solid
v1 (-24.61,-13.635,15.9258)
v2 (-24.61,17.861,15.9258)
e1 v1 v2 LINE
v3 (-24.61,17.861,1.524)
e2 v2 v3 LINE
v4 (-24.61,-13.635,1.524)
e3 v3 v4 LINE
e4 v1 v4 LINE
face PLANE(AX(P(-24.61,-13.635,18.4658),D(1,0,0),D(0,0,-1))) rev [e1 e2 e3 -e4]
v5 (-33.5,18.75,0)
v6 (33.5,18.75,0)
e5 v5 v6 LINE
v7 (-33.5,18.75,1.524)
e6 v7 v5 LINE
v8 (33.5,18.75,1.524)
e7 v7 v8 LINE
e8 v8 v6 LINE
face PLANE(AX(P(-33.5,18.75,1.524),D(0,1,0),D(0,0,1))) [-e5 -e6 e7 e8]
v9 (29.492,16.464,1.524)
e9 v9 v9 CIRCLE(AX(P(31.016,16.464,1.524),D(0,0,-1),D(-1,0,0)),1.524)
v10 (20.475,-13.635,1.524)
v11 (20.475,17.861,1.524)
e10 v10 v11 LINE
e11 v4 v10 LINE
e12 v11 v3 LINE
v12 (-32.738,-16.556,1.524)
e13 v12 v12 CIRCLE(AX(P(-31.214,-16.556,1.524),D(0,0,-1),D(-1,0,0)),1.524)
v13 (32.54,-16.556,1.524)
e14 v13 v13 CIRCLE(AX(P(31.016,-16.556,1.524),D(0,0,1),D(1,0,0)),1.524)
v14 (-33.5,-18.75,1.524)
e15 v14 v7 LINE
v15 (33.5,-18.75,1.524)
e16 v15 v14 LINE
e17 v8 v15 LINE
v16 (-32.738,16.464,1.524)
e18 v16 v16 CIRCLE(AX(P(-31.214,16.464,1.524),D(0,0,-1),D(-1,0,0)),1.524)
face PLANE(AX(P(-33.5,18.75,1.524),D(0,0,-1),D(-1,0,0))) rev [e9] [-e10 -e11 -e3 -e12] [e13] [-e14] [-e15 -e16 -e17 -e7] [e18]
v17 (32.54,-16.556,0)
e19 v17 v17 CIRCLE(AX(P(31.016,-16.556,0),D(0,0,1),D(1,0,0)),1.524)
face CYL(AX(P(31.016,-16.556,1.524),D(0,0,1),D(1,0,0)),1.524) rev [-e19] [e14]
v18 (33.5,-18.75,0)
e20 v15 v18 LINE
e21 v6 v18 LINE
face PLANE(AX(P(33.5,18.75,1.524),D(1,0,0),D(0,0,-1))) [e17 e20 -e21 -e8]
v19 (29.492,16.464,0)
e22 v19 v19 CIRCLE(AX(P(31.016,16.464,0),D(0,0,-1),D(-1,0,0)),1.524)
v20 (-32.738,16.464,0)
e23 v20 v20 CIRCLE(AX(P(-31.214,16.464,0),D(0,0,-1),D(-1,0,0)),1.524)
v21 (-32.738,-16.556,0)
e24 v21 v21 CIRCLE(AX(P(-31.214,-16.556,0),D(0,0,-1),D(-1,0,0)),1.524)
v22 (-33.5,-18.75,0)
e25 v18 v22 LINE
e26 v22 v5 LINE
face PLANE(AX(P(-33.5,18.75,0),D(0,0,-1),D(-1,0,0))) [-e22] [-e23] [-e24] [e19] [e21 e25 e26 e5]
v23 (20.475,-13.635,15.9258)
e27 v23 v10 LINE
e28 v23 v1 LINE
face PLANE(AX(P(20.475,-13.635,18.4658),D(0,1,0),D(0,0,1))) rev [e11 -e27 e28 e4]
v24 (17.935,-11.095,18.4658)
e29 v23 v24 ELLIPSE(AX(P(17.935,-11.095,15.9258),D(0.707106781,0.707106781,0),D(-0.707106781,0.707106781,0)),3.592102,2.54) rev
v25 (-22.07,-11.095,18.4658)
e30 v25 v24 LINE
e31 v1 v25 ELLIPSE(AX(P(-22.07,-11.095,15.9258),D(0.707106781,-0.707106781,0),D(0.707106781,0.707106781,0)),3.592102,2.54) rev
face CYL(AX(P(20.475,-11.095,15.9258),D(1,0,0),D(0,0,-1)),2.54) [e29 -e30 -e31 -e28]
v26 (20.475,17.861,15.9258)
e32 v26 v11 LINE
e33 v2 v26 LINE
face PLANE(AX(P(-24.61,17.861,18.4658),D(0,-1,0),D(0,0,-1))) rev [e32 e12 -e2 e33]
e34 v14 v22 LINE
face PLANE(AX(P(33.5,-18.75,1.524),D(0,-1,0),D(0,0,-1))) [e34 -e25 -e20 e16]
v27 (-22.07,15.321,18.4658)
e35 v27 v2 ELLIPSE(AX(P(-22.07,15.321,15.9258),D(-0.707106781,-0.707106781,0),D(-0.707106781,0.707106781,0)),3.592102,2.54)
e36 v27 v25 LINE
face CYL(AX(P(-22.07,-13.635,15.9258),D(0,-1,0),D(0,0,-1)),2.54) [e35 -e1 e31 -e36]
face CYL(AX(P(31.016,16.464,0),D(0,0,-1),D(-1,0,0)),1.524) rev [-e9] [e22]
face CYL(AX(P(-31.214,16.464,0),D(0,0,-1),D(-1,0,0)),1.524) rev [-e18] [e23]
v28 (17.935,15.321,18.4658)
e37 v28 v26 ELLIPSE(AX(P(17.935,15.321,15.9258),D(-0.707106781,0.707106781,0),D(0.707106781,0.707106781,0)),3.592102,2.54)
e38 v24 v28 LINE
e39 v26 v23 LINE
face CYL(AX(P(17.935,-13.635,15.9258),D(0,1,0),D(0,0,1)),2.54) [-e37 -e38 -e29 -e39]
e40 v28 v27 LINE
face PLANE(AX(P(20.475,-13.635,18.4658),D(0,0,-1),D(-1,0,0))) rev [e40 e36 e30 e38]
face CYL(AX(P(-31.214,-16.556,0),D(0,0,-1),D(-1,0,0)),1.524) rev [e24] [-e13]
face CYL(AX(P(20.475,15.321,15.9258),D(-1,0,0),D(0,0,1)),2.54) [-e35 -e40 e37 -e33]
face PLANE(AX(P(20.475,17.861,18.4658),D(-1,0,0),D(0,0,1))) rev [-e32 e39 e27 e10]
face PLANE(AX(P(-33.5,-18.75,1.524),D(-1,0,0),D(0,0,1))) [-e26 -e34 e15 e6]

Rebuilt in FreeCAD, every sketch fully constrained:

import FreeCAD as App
import Part
import Sketcher
Q = App.Units.Quantity


def edges_at(feature, points):
    """Names of the edges that pass closest to the given points."""
    edges = feature.Shape.Edges
    near = lambda p: min(range(len(edges)), key=lambda i: edges[i].distToShape(Part.Vertex(*p))[0])
    return sorted({f"Edge{near(p) + 1}" for p in points})


def add_polygon(sketch, points):
    """Adds a closed chain of lines whose ends are joined by coincident constraints."""
    first, n = sketch.GeometryCount, len(points)
    for a, b in zip(points, points[1:] + points[:1]):
        sketch.addGeometry(Part.LineSegment(App.Vector(*a, 0), App.Vector(*b, 0)), False)
    for i in range(n):
        sketch.addConstraint(Sketcher.Constraint("Coincident", first + i, 2, first + (i + 1) % n, 1))

doc = App.newDocument("Part")
params = doc.addObject("Spreadsheet::Sheet", "Params")
for row, (alias, value) in enumerate([
    ("pad1_length", "0.06 in"),
    ("sketch2_height", "1.24 in"),
    ("sketch2_width", "1.775 in"),
    ("pad2_length", "0.667 in"),
    ("sketch3_diameter", "0.12 in"),
    ("hole_diameter", "0.12 in"),
    ("sketch4_diameter", "0.12 in"),
    ("hole2_diameter", "0.12 in"),
    ("hole2_depth", "0.727 in"),
    ("sketch5_diameter", "0.12 in"),
    ("hole3_diameter", "0.12 in"),
    ("hole3_depth", "0.727 in"),
    ("sketch6_diameter", "0.12 in"),
    ("hole4_diameter", "0.12 in"),
    ("hole4_depth", "0.727 in"),
    ("fillet_radius", "0.1 in"),
], start=1):
    params.set(f"A{row}", alias)
    params.set(f"B{row}", "=" + value)
    params.setAlias(f"B{row}", alias)

body = doc.addObject("PartDesign::Body", "Body")

sketch1 = body.newObject("Sketcher::SketchObject", "Sketch")
sketch1.AttachmentSupport = (doc.getObject("XY_Plane"), [""])
sketch1.MapMode = "FlatFace"
add_polygon(sketch1, [(33.5, 18.75), (33.5, -18.75), (-33.5, -18.75), (-33.5, 18.75)])
sketch1.addConstraint([
    Sketcher.Constraint("Vertical", 0),
    Sketcher.Constraint("Horizontal", 1),
    Sketcher.Constraint("Vertical", 2),
    Sketcher.Constraint("Horizontal", 3),
    Sketcher.Constraint("Symmetric", 0, 2, 2, 2, -1, 1),
    Sketcher.Constraint("DistanceX", 1, 2, 1, 1, 67.0),
    Sketcher.Constraint("DistanceY", 0, 2, 0, 1, 37.5),
])
pad1 = body.newObject("PartDesign::Pad", "Pad")
pad1.Profile = sketch1
pad1.setExpression("Length", "Params.pad1_length")

sketch2 = body.newObject("Sketcher::SketchObject", "Sketch001")
sketch2.AttachmentSupport = (doc.getObject("XY_Plane"), [""])
sketch2.MapMode = "FlatFace"
sketch2.AttachmentOffset = App.Placement(App.Vector(0, 0, 0.06 * 25.4), App.Rotation())
add_polygon(sketch2, [(-24.61, 17.861), (-24.61, -13.635), (20.475, -13.635), (20.475, 17.861)])
sketch2.addConstraint([
    Sketcher.Constraint("Vertical", 0),
    Sketcher.Constraint("Horizontal", 1),
    Sketcher.Constraint("Vertical", 2),
    Sketcher.Constraint("Horizontal", 3),
    Sketcher.Constraint("DistanceY", 0, 2, 0, 1, Q("1.24 in")),
    Sketcher.Constraint("DistanceX", 1, 1, 1, 2, Q("1.775 in")),
    Sketcher.Constraint("DistanceX", 0, 2, -1, 1, 24.61),
    Sketcher.Constraint("DistanceY", 0, 2, -1, 1, 13.635),
])
sketch2.setExpression("Constraints[8]", "Params.sketch2_height")
sketch2.setExpression("Constraints[9]", "Params.sketch2_width")
pad2 = body.newObject("PartDesign::Pad", "Pad001")
pad2.Profile = sketch2
pad2.setExpression("Length", "Params.pad2_length")

sketch3 = body.newObject("Sketcher::SketchObject", "Sketch002")
sketch3.AttachmentSupport = (doc.getObject("XY_Plane"), [""])
sketch3.MapMode = "FlatFace"
sketch3.AttachmentOffset = App.Placement(App.Vector(0, 0, 0.06 * 25.4), App.Rotation())
sketch3.addGeometry(Part.Circle(App.Vector(31.016, -16.556, 0), App.Vector(0, 0, 1), 1.524), False)
sketch3.addConstraint([
    Sketcher.Constraint("Diameter", 0, Q("0.12 in")),
    Sketcher.Constraint("DistanceX", -1, 1, 0, 3, 31.016),
    Sketcher.Constraint("DistanceY", 0, 3, -1, 1, 16.556),
])
sketch3.setExpression("Constraints[0]", "Params.sketch3_diameter")
doc.recompute()
hole = body.newObject("PartDesign::Hole", "Hole")
hole.Profile = sketch3
hole.ThreadType = "None"
hole.setExpression("Diameter", "Params.hole_diameter")
hole.DepthType = "ThroughAll"

sketch4 = body.newObject("Sketcher::SketchObject", "Sketch003")
sketch4.AttachmentSupport = (doc.getObject("XY_Plane"), [""])
sketch4.MapMode = "FlatFace"
sketch4.addGeometry(Part.Circle(App.Vector(-31.214, -16.556, 0), App.Vector(0, 0, 1), 1.524), False)
sketch4.addConstraint([
    Sketcher.Constraint("Diameter", 0, Q("0.12 in")),
    Sketcher.Constraint("DistanceX", 0, 3, -1, 1, 31.214),
    Sketcher.Constraint("DistanceY", 0, 3, -1, 1, 16.556),
])
sketch4.setExpression("Constraints[0]", "Params.sketch4_diameter")
doc.recompute()
hole2 = body.newObject("PartDesign::Hole", "Hole001")
hole2.Profile = sketch4
hole2.ThreadType = "None"
hole2.setExpression("Diameter", "Params.hole2_diameter")
hole2.DepthType = "Dimension"
hole2.setExpression("Depth", "Params.hole2_depth")
hole2.DrillPoint = "Flat"
hole2.Reversed = True

sketch5 = body.newObject("Sketcher::SketchObject", "Sketch004")
sketch5.AttachmentSupport = (doc.getObject("XY_Plane"), [""])
sketch5.MapMode = "FlatFace"
sketch5.addGeometry(Part.Circle(App.Vector(31.016, 16.464, 0), App.Vector(0, 0, 1), 1.524), False)
sketch5.addConstraint([
    Sketcher.Constraint("Diameter", 0, Q("0.12 in")),
    Sketcher.Constraint("DistanceX", -1, 1, 0, 3, 31.016),
    Sketcher.Constraint("DistanceY", -1, 1, 0, 3, 16.464),
])
sketch5.setExpression("Constraints[0]", "Params.sketch5_diameter")
doc.recompute()
hole3 = body.newObject("PartDesign::Hole", "Hole002")
hole3.Profile = sketch5
hole3.ThreadType = "None"
hole3.setExpression("Diameter", "Params.hole3_diameter")
hole3.DepthType = "Dimension"
hole3.setExpression("Depth", "Params.hole3_depth")
hole3.DrillPoint = "Flat"
hole3.Reversed = True

sketch6 = body.newObject("Sketcher::SketchObject", "Sketch005")
sketch6.AttachmentSupport = (doc.getObject("XY_Plane"), [""])
sketch6.MapMode = "FlatFace"
sketch6.addGeometry(Part.Circle(App.Vector(-31.214, 16.464, 0), App.Vector(0, 0, 1), 1.524), False)
sketch6.addConstraint([
    Sketcher.Constraint("Diameter", 0, Q("0.12 in")),
    Sketcher.Constraint("DistanceX", 0, 3, -1, 1, 31.214),
    Sketcher.Constraint("DistanceY", -1, 1, 0, 3, 16.464),
])
sketch6.setExpression("Constraints[0]", "Params.sketch6_diameter")
doc.recompute()
hole4 = body.newObject("PartDesign::Hole", "Hole003")
hole4.Profile = sketch6
hole4.ThreadType = "None"
hole4.setExpression("Diameter", "Params.hole4_diameter")
hole4.DepthType = "Dimension"
hole4.setExpression("Depth", "Params.hole4_depth")
hole4.DrillPoint = "Flat"
hole4.Reversed = True
doc.recompute()

fillet = body.newObject("PartDesign::Fillet", "Fillet")
fillet.Base = (hole4, edges_at(hole4, [
    (20.475, 2.113, 18.466),
    (-2.068, 17.861, 18.466),
    (-24.61, 2.113, 18.466),
    (-2.068, -13.635, 18.466),
]))
fillet.setExpression("Radius", "Params.fillet_radius")

doc.recompute()
